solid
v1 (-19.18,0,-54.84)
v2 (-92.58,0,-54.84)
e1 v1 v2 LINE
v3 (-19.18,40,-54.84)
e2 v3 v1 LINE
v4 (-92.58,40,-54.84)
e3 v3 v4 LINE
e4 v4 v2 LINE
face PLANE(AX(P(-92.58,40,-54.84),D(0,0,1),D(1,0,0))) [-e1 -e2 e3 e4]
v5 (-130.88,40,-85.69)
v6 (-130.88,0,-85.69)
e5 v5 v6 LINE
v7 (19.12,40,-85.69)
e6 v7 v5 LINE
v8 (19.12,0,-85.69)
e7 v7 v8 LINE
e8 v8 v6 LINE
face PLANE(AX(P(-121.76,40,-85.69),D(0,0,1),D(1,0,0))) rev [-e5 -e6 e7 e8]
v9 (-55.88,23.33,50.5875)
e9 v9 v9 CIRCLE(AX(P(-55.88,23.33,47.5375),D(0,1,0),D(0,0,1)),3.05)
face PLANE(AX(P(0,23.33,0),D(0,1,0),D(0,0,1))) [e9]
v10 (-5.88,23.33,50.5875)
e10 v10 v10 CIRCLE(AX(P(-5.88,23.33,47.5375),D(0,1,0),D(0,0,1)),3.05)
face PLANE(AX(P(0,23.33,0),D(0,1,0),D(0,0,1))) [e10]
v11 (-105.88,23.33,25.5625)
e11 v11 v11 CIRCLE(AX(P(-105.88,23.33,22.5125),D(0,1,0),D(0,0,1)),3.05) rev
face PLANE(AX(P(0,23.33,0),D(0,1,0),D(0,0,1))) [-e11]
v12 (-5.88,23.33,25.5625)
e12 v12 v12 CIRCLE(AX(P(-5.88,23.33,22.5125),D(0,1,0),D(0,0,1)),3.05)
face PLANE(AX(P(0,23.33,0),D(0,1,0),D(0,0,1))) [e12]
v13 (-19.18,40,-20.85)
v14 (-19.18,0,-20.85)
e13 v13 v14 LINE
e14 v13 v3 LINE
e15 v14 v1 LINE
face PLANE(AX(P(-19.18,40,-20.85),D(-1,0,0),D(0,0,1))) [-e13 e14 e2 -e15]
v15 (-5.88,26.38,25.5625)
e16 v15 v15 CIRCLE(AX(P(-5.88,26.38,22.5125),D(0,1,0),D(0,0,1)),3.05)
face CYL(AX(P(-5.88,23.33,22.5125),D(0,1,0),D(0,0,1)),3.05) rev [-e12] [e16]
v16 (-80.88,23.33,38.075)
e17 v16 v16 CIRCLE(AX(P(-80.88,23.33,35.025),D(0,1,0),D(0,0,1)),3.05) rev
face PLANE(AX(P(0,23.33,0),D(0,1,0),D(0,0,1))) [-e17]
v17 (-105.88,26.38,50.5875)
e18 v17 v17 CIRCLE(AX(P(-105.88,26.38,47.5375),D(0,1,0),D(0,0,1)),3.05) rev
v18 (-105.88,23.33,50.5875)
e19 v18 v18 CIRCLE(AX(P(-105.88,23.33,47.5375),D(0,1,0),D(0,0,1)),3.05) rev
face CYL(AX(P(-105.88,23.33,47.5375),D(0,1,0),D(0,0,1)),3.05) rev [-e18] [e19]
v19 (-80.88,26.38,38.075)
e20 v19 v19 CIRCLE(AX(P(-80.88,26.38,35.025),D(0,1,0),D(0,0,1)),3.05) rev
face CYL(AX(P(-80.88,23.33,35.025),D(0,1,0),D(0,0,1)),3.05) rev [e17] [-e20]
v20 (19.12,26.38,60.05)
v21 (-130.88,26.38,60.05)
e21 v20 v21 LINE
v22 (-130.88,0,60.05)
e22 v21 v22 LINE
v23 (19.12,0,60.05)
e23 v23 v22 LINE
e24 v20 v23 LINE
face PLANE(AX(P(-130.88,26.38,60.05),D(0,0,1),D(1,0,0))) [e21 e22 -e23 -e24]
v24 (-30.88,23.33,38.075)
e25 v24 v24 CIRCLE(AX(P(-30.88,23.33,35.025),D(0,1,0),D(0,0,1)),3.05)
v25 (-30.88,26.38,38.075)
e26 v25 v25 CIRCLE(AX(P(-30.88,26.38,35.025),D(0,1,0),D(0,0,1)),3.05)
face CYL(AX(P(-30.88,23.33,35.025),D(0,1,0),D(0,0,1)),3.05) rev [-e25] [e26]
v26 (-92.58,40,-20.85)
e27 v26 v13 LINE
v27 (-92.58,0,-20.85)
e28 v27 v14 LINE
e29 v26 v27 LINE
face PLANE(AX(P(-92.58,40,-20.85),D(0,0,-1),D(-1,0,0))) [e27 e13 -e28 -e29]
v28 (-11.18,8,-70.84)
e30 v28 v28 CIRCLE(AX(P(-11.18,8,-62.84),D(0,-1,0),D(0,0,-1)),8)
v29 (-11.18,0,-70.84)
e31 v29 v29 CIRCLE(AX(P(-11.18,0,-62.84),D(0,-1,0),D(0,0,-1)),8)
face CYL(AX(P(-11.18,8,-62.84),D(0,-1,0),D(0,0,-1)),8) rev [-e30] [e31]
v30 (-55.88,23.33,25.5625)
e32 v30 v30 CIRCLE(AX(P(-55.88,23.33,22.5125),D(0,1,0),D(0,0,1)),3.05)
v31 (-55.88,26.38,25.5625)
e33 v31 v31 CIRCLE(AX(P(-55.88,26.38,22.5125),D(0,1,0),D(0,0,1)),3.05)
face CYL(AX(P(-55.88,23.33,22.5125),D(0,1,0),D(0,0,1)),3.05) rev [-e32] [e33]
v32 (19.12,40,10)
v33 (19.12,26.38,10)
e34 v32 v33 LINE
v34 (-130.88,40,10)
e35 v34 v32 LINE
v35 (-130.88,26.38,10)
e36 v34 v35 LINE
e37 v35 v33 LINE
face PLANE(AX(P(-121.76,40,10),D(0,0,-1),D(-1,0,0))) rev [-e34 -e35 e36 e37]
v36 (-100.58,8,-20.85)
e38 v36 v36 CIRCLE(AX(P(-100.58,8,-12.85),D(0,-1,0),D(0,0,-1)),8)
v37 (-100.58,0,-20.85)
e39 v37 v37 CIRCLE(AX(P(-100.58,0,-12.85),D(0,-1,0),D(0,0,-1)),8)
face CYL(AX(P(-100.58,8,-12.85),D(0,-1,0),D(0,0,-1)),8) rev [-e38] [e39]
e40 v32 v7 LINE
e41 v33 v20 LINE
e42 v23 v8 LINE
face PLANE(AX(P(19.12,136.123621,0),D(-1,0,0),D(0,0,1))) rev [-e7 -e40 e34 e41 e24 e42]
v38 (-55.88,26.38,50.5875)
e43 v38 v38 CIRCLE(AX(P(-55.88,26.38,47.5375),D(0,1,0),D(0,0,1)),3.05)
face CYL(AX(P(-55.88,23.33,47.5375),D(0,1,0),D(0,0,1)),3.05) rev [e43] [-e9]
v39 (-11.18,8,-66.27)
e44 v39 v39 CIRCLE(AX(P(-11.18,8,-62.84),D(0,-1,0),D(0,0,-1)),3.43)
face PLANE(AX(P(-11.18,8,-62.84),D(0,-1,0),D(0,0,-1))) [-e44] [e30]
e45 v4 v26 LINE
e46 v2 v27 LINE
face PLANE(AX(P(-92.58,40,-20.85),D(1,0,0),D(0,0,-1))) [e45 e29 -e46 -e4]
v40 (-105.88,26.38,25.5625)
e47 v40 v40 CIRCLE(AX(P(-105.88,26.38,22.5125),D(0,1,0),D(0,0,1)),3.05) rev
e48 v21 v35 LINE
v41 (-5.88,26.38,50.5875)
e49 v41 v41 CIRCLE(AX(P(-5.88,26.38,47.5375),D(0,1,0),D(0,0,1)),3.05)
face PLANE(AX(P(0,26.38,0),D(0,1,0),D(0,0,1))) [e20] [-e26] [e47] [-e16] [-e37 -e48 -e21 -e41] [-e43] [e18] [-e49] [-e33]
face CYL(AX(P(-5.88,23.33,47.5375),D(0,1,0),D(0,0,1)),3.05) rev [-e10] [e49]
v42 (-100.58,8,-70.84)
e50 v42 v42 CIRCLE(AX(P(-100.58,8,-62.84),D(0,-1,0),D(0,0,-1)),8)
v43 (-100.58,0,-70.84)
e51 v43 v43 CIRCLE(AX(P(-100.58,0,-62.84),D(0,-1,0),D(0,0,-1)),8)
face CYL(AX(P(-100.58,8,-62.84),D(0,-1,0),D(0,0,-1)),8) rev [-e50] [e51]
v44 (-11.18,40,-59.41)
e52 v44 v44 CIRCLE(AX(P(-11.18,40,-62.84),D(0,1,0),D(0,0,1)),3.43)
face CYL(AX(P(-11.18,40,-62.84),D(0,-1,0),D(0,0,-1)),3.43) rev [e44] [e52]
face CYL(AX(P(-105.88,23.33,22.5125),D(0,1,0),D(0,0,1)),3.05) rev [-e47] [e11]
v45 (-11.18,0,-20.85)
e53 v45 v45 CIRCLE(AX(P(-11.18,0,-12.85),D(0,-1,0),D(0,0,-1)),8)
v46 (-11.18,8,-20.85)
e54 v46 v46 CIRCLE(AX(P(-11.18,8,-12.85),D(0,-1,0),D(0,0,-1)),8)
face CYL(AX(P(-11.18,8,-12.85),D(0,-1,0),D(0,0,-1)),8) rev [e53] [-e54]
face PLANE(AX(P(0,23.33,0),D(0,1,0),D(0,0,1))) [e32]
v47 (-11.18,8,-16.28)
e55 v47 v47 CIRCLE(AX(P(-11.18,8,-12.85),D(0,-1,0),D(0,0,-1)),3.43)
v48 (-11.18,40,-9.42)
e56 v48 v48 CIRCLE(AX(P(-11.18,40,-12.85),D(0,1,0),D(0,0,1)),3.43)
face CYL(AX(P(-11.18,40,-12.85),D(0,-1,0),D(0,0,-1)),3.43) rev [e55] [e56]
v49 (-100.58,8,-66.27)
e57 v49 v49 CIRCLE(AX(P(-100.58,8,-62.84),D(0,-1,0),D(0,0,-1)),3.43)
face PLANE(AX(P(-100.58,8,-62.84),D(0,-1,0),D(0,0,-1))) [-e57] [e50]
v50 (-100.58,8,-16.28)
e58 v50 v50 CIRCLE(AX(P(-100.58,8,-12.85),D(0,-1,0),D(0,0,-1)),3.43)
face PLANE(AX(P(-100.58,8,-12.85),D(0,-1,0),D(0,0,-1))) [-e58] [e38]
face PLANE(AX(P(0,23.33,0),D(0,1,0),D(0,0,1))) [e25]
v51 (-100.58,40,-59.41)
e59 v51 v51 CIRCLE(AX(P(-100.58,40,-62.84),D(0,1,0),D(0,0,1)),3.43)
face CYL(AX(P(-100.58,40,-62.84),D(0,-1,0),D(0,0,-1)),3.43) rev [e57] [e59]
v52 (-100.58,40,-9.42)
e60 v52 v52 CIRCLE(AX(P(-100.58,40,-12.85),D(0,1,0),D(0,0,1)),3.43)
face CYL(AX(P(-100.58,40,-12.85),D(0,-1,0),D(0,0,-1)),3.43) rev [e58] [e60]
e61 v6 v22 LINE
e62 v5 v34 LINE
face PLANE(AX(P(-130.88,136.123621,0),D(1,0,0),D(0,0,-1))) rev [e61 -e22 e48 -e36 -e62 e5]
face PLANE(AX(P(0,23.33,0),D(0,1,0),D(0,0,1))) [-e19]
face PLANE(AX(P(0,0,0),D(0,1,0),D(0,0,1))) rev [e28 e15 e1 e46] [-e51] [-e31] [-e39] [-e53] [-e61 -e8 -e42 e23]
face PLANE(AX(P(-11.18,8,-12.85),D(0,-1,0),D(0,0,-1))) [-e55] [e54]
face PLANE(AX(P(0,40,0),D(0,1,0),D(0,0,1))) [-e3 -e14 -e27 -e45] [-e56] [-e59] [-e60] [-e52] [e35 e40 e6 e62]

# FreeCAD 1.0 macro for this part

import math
import FreeCAD as App
import Part
import Sketcher

V = App.Vector


def add_polygon(sketch, points):
    """Adds a closed chain of lines whose ends are joined by coincident constraints."""
    first, n = sketch.GeometryCount, len(points)
    for a, b in zip(points, points[1:] + points[:1]):
        sketch.addGeometry(Part.LineSegment(App.Vector(*a, 0), App.Vector(*b, 0)), False)
    for i in range(n):
        sketch.addConstraint(Sketcher.Constraint("Coincident", first + i, 2, first + (i + 1) % n, 1))

doc = App.newDocument("Part")
params = doc.addObject("Spreadsheet::Sheet", "Params")
for row, (alias, value) in enumerate([
    ("sketch1_diameter", "6.86 mm"),
    ("sketch1_width", "73.4 mm"),
    ("sketch1_width2", "131.76 mm"),
    ("sketch1_height", "95.69 mm"),
    ("sketch1_height2", "33.99 mm"),
    ("pad1_length", "40 mm"),
    ("sketch2_diameter", "16 mm"),
    ("pocket1_length", "8 mm"),
    ("sketch3_width", "9.12 mm"),
    ("sketch3_height", "95.69 mm"),
    ("pad2_length", "40 mm"),
    ("sketch4_width", "150 mm"),
    ("sketch4_height", "50.05 mm"),
    ("pad3_length", "26.38 mm"),
    ("sketch5_diameter", "6.1 mm"),
    ("pocket2_length", "3.05 mm"),
], start=1):
    params.set(f"A{row}", alias)
    params.set(f"B{row}", "=" + value)
    params.setAlias(f"B{row}", alias)

body = doc.addObject("PartDesign::Body", "Body")

# Sketch on XZ plane
sketch1 = body.newObject("Sketcher::SketchObject", "Sketch")
sketch1.AttachmentSupport = (doc.getObject("XZ_Plane"), [""])
sketch1.MapMode = "FlatFace"
add_polygon(sketch1, [(-121.8, -85.7), (-121.8, 10), (10, 10), (10, -85.7)])  # lines 0-3
sketch1.addGeometry(Part.Circle(V(-100.6, -12.8, 0), V(0, 0, 1), 3.4), False)  # 4
sketch1.addGeometry(Part.Circle(V(-11.2, -12.8, 0), V(0, 0, 1), 3.4), False)  # 5
add_polygon(sketch1, [(-19.2, -20.9), (-92.6, -20.9), (-92.6, -54.8), (-19.2, -54.8)])  # lines 6-9
sketch1.addGeometry(Part.Circle(V(-100.6, -62.8, 0), V(0, 0, 1), 3.4), False)  # 10
sketch1.addGeometry(Part.Circle(V(-11.2, -62.8, 0), V(0, 0, 1), 3.4), False)  # 11
sketch1.addConstraint([
    Sketcher.Constraint("Vertical", 0),
    Sketcher.Constraint("Horizontal", 1),
    Sketcher.Constraint("Vertical", 2),
    Sketcher.Constraint("Horizontal", 3),
    Sketcher.Constraint("Horizontal", 6),
    Sketcher.Constraint("Vertical", 7),
    Sketcher.Constraint("Horizontal", 8),
    Sketcher.Constraint("Vertical", 9),
    Sketcher.Constraint("Equal", 4, 5),
    Sketcher.Constraint("Equal", 5, 10),
    Sketcher.Constraint("Equal", 10, 11),
    Sketcher.Constraint("Horizontal", 4, 3, 5, 3),
    Sketcher.Constraint("Horizontal", 10, 3, 11, 3),
    Sketcher.Constraint("Vertical", 4, 3, 10, 3),
    Sketcher.Constraint("Vertical", 5, 3, 11, 3),
    Sketcher.Constraint("Diameter", 4, 6.86),
    Sketcher.Constraint("DistanceX", 6, 2, 6, 1, 73.4),
    Sketcher.Constraint("DistanceY", -1, 1, 0, 2, 10.0),
    Sketcher.Constraint("DistanceX", -1, 1, 1, 2, 10.0),
    Sketcher.Constraint("DistanceX", 4, 3, 6, 2, 8.0),
    Sketcher.Constraint("DistanceY", 6, 2, 4, 3, 8.0),
    Sketcher.Constraint("DistanceY", 10, 3, 7, 2, 8.0),
    Sketcher.Constraint("DistanceX", 8, 2, 11, 3, 8.0),
    Sketcher.Constraint("DistanceX", 1, 1, 1, 2, 131.76),
    Sketcher.Constraint("DistanceY", 0, 1, 0, 2, 95.69),
    Sketcher.Constraint("DistanceY", 7, 2, 7, 1, 33.99),
    Sketcher.Constraint("DistanceX", 4, 3, -1, 1, 100.58),
    Sketcher.Constraint("DistanceY", 4, 3, -1, 1, 12.85),
])
sketch1.setExpression("Constraints[23]", "Params.sketch1_diameter")
sketch1.setExpression("Constraints[24]", "Params.sketch1_width")
sketch1.setExpression("Constraints[31]", "Params.sketch1_width2")
sketch1.setExpression("Constraints[32]", "Params.sketch1_height")
sketch1.setExpression("Constraints[33]", "Params.sketch1_height2")
pad1 = body.newObject("PartDesign::Pad", "Pad")
pad1.Profile = sketch1
pad1.setExpression("Length", "Params.pad1_length")
pad1.Reversed = True

# Sketch on XZ plane
sketch2 = body.newObject("Sketcher::SketchObject", "Sketch001")
sketch2.AttachmentSupport = (doc.getObject("XZ_Plane"), [""])
sketch2.MapMode = "FlatFace"
sketch2.addGeometry([
    Part.Circle(V(-101, -13, 0), V(0, 0, 1), 8),
    Part.Circle(V(-11, -13, 0), V(0, 0, 1), 8),
    Part.Circle(V(-11, -63, 0), V(0, 0, 1), 8),
    Part.Circle(V(-101, -63, 0), V(0, 0, 1), 8),
], False)
sketch2.addConstraint([
    Sketcher.Constraint("Equal", 0, 1),
    Sketcher.Constraint("Equal", 1, 2),
    Sketcher.Constraint("Equal", 2, 3),
    Sketcher.Constraint("Horizontal", 0, 3, 1, 3),
    Sketcher.Constraint("Horizontal", 2, 3, 3, 3),
    Sketcher.Constraint("Vertical", 1, 3, 2, 3),
    Sketcher.Constraint("Vertical", 0, 3, 3, 3),
    Sketcher.Constraint("Diameter", 0, 16.0),
    Sketcher.Constraint("DistanceX", 0, 3, 1, 3, 89.4),
    Sketcher.Constraint("DistanceX", 0, 3, -1, 1, 100.58),
    Sketcher.Constraint("DistanceY", 0, 3, -1, 1, 12.85),
    Sketcher.Constraint("DistanceY", 2, 3, -1, 1, 62.84),
])
sketch2.setExpression("Constraints[7]", "Params.sketch2_diameter")
pocket1 = body.newObject("PartDesign::Pocket", "Pocket")
pocket1.Profile = sketch2
pocket1.setExpression("Length", "Params.pocket1_length")

# Sketch on XZ plane
sketch3 = body.newObject("Sketcher::SketchObject", "Sketch002")
sketch3.AttachmentSupport = (doc.getObject("XZ_Plane"), [""])
sketch3.MapMode = "FlatFace"
add_polygon(sketch3, [(-131, 10), (-131, -86), (-122, -86), (-122, 10)])  # lines 0-3
add_polygon(sketch3, [(10, 10), (10, -86), (19, -86), (19, 10)])  # lines 4-7
sketch3.addConstraint([
    Sketcher.Constraint("Vertical", 0),
    Sketcher.Constraint("Horizontal", 1),
    Sketcher.Constraint("Vertical", 2),
    Sketcher.Constraint("Horizontal", 3),
    Sketcher.Constraint("Vertical", 4),
    Sketcher.Constraint("Horizontal", 5),
    Sketcher.Constraint("Vertical", 6),
    Sketcher.Constraint("Horizontal", 7),
    Sketcher.Constraint("Horizontal", 1, 2, 4, 2),
    Sketcher.Constraint("Horizontal", 3, 2, 6, 2),
    Sketcher.Constraint("Equal", 3, 5),
    Sketcher.Constraint("DistanceY", -1, 1, 2, 2, 10.0),
    Sketcher.Constraint("DistanceX", -1, 1, 4, 2, 10.0),
    Sketcher.Constraint("DistanceX", 0, 2, 5, 2, 150.0),
    Sketcher.Constraint("DistanceX", 1, 1, 1, 2, 9.12),
    Sketcher.Constraint("DistanceY", 0, 2, 0, 1, 95.69),
])
sketch3.setExpression("Constraints[22]", "Params.sketch3_width")
sketch3.setExpression("Constraints[23]", "Params.sketch3_height")
pad2 = body.newObject("PartDesign::Pad", "Pad001")
pad2.Profile = sketch3
pad2.setExpression("Length", "Params.pad2_length")
pad2.Reversed = True

# Sketch on XZ plane
sketch4 = body.newObject("Sketcher::SketchObject", "Sketch003")
sketch4.AttachmentSupport = (doc.getObject("XZ_Plane"), [""])
sketch4.MapMode = "FlatFace"
add_polygon(sketch4, [(-131, 60), (-131, 10), (19, 10), (19, 60)])  # lines 0-3
sketch4.addConstraint([
    Sketcher.Constraint("Vertical", 0),
    Sketcher.Constraint("Horizontal", 1),
    Sketcher.Constraint("Vertical", 2),
    Sketcher.Constraint("Horizontal", 3),
    Sketcher.Constraint("DistanceX", 1, 1, 1, 2, 150.0),
    Sketcher.Constraint("DistanceY", -1, 1, 0, 2, 10.0),
    Sketcher.Constraint("DistanceY", 0, 2, 0, 1, 50.05),
    Sketcher.Constraint("DistanceX", 0, 2, -1, 1, 130.88),
])
sketch4.setExpression("Constraints[8]", "Params.sketch4_width")
sketch4.setExpression("Constraints[10]", "Params.sketch4_height")
pad3 = body.newObject("PartDesign::Pad", "Pad002")
pad3.Profile = sketch4
pad3.setExpression("Length", "Params.pad3_length")
pad3.Reversed = True

# Sketch on XZ plane
sketch5 = body.newObject("Sketcher::SketchObject", "Sketch004")
sketch5.AttachmentSupport = (doc.getObject("XZ_Plane"), [""])
sketch5.MapMode = "FlatFace"
sketch5.AttachmentOffset = App.Placement(V(0, 0, -26.38), App.Rotation())
sketch5.addGeometry([
    Part.Circle(V(-105.9, 22.5, 0), V(0, 0, 1), 3),  # 0
    Part.Circle(V(-105.9, 47.5, 0), V(0, 0, 1), 3),  # 1
    Part.Circle(V(-80.9, 35, 0), V(0, 0, 1), 3),  # 2
    Part.ArcOfCircle(Part.Circle(V(-55.9, 22.5, 0), V(0, 0, 1), 3), math.radians(-90), math.radians(0)),  # 3
    Part.ArcOfCircle(Part.Circle(V(-55.9, 22.5, 0), V(0, 0, 1), 3), math.radians(90), math.radians(270)),  # 4
    Part.ArcOfCircle(Part.Circle(V(-55.9, 22.5, 0), V(0, 0, 1), 3), math.radians(0), math.radians(90)),  # 5
    Part.ArcOfCircle(Part.Circle(V(-55.9, 47.5, 0), V(0, 0, 1), 3), math.radians(90), math.radians(270)),  # 6
    Part.ArcOfCircle(Part.Circle(V(-55.9, 47.5, 0), V(0, 0, 1), 3), math.radians(0), math.radians(90)),  # 7
    Part.ArcOfCircle(Part.Circle(V(-55.9, 47.5, 0), V(0, 0, 1), 3), math.radians(-90), math.radians(0)),  # 8
    Part.ArcOfCircle(Part.Circle(V(-30.9, 35, 0), V(0, 0, 1), 3), math.radians(180), math.radians(270)),  # 9
    Part.ArcOfCircle(Part.Circle(V(-30.9, 35, 0), V(0, 0, 1), 3), math.radians(90), math.radians(180)),  # 10
    Part.ArcOfCircle(Part.Circle(V(-30.9, 35, 0), V(0, 0, 1), 3), math.radians(0), math.radians(90)),  # 11
    Part.ArcOfCircle(Part.Circle(V(-30.9, 35, 0), V(0, 0, 1), 3), math.radians(-90), math.radians(0)),  # 12
    Part.ArcOfCircle(Part.Circle(V(-5.9, 22.5, 0), V(0, 0, 1), 3), math.radians(-90), math.radians(0)),  # 13
    Part.ArcOfCircle(Part.Circle(V(-5.9, 22.5, 0), V(0, 0, 1), 3), math.radians(90), math.radians(270)),  # 14
    Part.ArcOfCircle(Part.Circle(V(-5.9, 22.5, 0), V(0, 0, 1), 3), math.radians(0), math.radians(90)),  # 15
    Part.ArcOfCircle(Part.Circle(V(-5.9, 47.5, 0), V(0, 0, 1), 3), math.radians(90), math.radians(270)),  # 16
    Part.ArcOfCircle(Part.Circle(V(-5.9, 47.5, 0), V(0, 0, 1), 3), math.radians(0), math.radians(90)),  # 17
    Part.ArcOfCircle(Part.Circle(V(-5.9, 47.5, 0), V(0, 0, 1), 3), math.radians(-90), math.radians(0)),  # 18
], False)
sketch5.addConstraint([
    Sketcher.Constraint("Tangent", 3, 1, 4, 2),
    Sketcher.Constraint("Tangent", 4, 1, 5, 2),
    Sketcher.Constraint("Tangent", 5, 1, 3, 2),
    Sketcher.Constraint("Tangent", 6, 1, 7, 2),
    Sketcher.Constraint("Tangent", 7, 1, 8, 2),
    Sketcher.Constraint("Tangent", 8, 1, 6, 2),
    Sketcher.Constraint("Tangent", 9, 1, 10, 2),
    Sketcher.Constraint("Tangent", 10, 1, 11, 2),
    Sketcher.Constraint("Tangent", 11, 1, 12, 2),
    Sketcher.Constraint("Tangent", 12, 1, 9, 2),
    Sketcher.Constraint("Tangent", 13, 1, 14, 2),
    Sketcher.Constraint("Tangent", 14, 1, 15, 2),
    Sketcher.Constraint("Tangent", 15, 1, 13, 2),
    Sketcher.Constraint("Tangent", 16, 1, 17, 2),
    Sketcher.Constraint("Tangent", 17, 1, 18, 2),
    Sketcher.Constraint("Tangent", 18, 1, 16, 2),
    Sketcher.Constraint("Equal", 0, 1),
    Sketcher.Constraint("Equal", 1, 2),
    Sketcher.Constraint("Equal", 2, 3),
    Sketcher.Constraint("Equal", 5, 6),
    Sketcher.Constraint("Equal", 8, 9),
    Sketcher.Constraint("Equal", 9, 10),
    Sketcher.Constraint("Equal", 12, 13),
    Sketcher.Constraint("Equal", 15, 16),
    Sketcher.Constraint("Horizontal", 0, 3, 3, 3),
    Sketcher.Constraint("Horizontal", 1, 3, 6, 3),
    Sketcher.Constraint("Horizontal", 2, 3, 9, 3),
    Sketcher.Constraint("Horizontal", 5, 3, 13, 3),
    Sketcher.Constraint("Horizontal", 8, 3, 16, 3),
    Sketcher.Constraint("Horizontal", 15, 3, 5, 1),
    Sketcher.Constraint("Horizontal", 18, 3, 7, 1),
    Sketcher.Constraint("Horizontal", 12, 3, 9, 1),
    Sketcher.Constraint("Horizontal", 9, 1, 11, 1),
    Sketcher.Constraint("Horizontal", 5, 1, 15, 1),
    Sketcher.Constraint("Horizontal", 7, 1, 17, 1),
    Sketcher.Constraint("Vertical", 0, 3, 1, 3),
    Sketcher.Constraint("Vertical", 5, 3, 6, 3),
    Sketcher.Constraint("Vertical", 15, 3, 16, 3),
    Sketcher.Constraint("Vertical", 8, 3, 3, 1),
    Sketcher.Constraint("Vertical", 3, 1, 4, 1),
    Sketcher.Constraint("Vertical", 4, 1, 6, 1),
    Sketcher.Constraint("Vertical", 6, 1, 8, 1),
    Sketcher.Constraint("Vertical", 12, 3, 10, 1),
    Sketcher.Constraint("Vertical", 10, 1, 12, 1),
    Sketcher.Constraint("Vertical", 18, 3, 13, 1),
    Sketcher.Constraint("Vertical", 13, 1, 14, 1),
    Sketcher.Constraint("Vertical", 14, 1, 16, 1),
    Sketcher.Constraint("Vertical", 16, 1, 18, 1),
    Sketcher.Constraint("Diameter", 0, 6.1),
    Sketcher.Constraint("DistanceX", 0, 3, 2, 3, 25.0),
    Sketcher.Constraint("DistanceX", 2, 3, 3, 3, 25.0),
    Sketcher.Constraint("DistanceX", 5, 3, 9, 3, 25.0),
    Sketcher.Constraint("DistanceX", 12, 3, 13, 3, 25.0),
    Sketcher.Constraint("DistanceX", 0, 3, -1, 1, 105.88),
    Sketcher.Constraint("DistanceY", -1, 1, 2, 3, 35.025),
    Sketcher.Constraint("DistanceY", 0, 3, 1, 3, 25.025),
    Sketcher.Constraint("DistanceY", -1, 1, 0, 3, 22.5125),
])
sketch5.setExpression("Constraints[48]", "Params.sketch5_diameter")
pocket2 = body.newObject("PartDesign::Pocket", "Pocket001")
pocket2.Profile = sketch5
pocket2.setExpression("Length", "Params.pocket2_length")
pocket2.Reversed = True

doc.recompute()
